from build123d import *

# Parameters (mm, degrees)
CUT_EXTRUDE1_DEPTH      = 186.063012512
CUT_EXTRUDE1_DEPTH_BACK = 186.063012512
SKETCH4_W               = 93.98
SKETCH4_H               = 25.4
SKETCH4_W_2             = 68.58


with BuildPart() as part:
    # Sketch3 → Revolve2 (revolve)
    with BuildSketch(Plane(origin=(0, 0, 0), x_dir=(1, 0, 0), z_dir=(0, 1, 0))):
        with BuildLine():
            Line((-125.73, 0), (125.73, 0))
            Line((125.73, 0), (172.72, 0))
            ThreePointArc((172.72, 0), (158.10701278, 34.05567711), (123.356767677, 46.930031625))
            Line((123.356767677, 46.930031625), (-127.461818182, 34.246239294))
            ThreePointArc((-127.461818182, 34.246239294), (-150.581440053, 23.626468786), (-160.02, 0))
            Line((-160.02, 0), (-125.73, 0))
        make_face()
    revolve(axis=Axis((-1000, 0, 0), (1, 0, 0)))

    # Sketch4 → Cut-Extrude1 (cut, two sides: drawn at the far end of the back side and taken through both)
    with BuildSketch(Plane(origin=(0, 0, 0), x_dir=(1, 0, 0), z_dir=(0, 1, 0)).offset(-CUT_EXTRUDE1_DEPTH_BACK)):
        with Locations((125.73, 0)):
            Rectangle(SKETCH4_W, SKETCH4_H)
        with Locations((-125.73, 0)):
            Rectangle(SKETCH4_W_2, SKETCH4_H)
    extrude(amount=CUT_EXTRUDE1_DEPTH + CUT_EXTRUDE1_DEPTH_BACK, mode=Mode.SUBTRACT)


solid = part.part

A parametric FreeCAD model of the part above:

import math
import FreeCAD as App
import Part
import Sketcher
Q = App.Units.Quantity

doc = App.newDocument("Part")
body = doc.addObject("PartDesign::Body", "Body")

# Sketch on XZ plane
sketch1 = doc.addObject("Sketcher::SketchObject", "Sketch")
body.addObject(sketch1)
sketch1.AttachmentSupport = (doc.XZ_Plane, [""])
sketch1.MapMode = "FlatFace"
sketch1.addGeometry(Part.ArcOfCircle(Part.Circle(App.Vector(126, 0, 0), App.Vector(0, 0, 1), 47), math.radians(-93), math.radians(0)), False)
sketch1.addGeometry(Part.LineSegment(App.Vector(123, -47, 0), App.Vector(-127, -34, 0)), False)
sketch1.addGeometry(Part.ArcOfCircle(Part.Circle(App.Vector(-126, 0, 0), App.Vector(0, 0, 1), 34), math.radians(180), math.radians(267)), False)
sketch1.addGeometry(Part.LineSegment(App.Vector(-160, 0, 0), App.Vector(173, 0, 0)), False)
sketch1.addConstraint(Sketcher.Constraint("Tangent", 0, 1, 1, 1))
sketch1.addConstraint(Sketcher.Constraint("Tangent", 1, 2, 2, 2))
sketch1.addConstraint(Sketcher.Constraint("Coincident", 2, 1, 3, 1))
sketch1.addConstraint(Sketcher.Constraint("Coincident", 3, 2, 0, 2))
sketch1.addConstraint(Sketcher.Constraint("Horizontal", 3))
sketch1.addConstraint(Sketcher.Constraint("Symmetric", 0, 3, 2, 3, -1, 1))
sketch1.addConstraint(Sketcher.Constraint("PointOnObject", 0, 3, -1))
sketch1.addConstraint(Sketcher.Constraint("PointOnObject", 2, 1, -1))
sketch1.addConstraint(Sketcher.Constraint("Radius", 0, Q("1.85 in")))
sketch1.addConstraint(Sketcher.Constraint("Radius", 2, Q("1.35 in")))
sketch1.addConstraint(Sketcher.Constraint("DistanceX", 3, 1, 3, 2, Q("13.1 in")))
revolution = doc.addObject("PartDesign::Revolution", "Revolution")
body.addObject(revolution)
revolution.Profile = sketch1
revolution.ReferenceAxis = (sketch1, ["H_Axis"])
revolution.Angle = 360

# Sketch on XZ plane
sketch2 = doc.addObject("Sketcher::SketchObject", "Sketch001")
body.addObject(sketch2)
sketch2.AttachmentSupport = (doc.XZ_Plane, [""])
sketch2.MapMode = "FlatFace"
sketch2.addGeometry(Part.LineSegment(App.Vector(79, -13, 0), App.Vector(79, 13, 0)), False)
sketch2.addGeometry(Part.LineSegment(App.Vector(79, 13, 0), App.Vector(173, 13, 0)), False)
sketch2.addGeometry(Part.LineSegment(App.Vector(173, 13, 0), App.Vector(173, -13, 0)), False)
sketch2.addGeometry(Part.LineSegment(App.Vector(173, -13, 0), App.Vector(79, -13, 0)), False)
sketch2.addGeometry(Part.LineSegment(App.Vector(-160, -13, 0), App.Vector(-160, 13, 0)), False)
sketch2.addGeometry(Part.LineSegment(App.Vector(-160, 13, 0), App.Vector(-91, 13, 0)), False)
sketch2.addGeometry(Part.LineSegment(App.Vector(-91, 13, 0), App.Vector(-91, -13, 0)), False)
sketch2.addGeometry(Part.LineSegment(App.Vector(-91, -13, 0), App.Vector(-160, -13, 0)), False)
sketch2.addConstraint(Sketcher.Constraint("Coincident", 0, 2, 1, 1))
sketch2.addConstraint(Sketcher.Constraint("Coincident", 1, 2, 2, 1))
sketch2.addConstraint(Sketcher.Constraint("Coincident", 2, 2, 3, 1))
sketch2.addConstraint(Sketcher.Constraint("Coincident", 3, 2, 0, 1))
sketch2.addConstraint(Sketcher.Constraint("Coincident", 4, 2, 5, 1))
sketch2.addConstraint(Sketcher.Constraint("Coincident", 5, 2, 6, 1))
sketch2.addConstraint(Sketcher.Constraint("Coincident", 6, 2, 7, 1))
sketch2.addConstraint(Sketcher.Constraint("Coincident", 7, 2, 4, 1))
sketch2.addConstraint(Sketcher.Constraint("Vertical", 0))
sketch2.addConstraint(Sketcher.Constraint("Horizontal", 1))
sketch2.addConstraint(Sketcher.Constraint("Vertical", 2))
sketch2.addConstraint(Sketcher.Constraint("Horizontal", 3))
sketch2.addConstraint(Sketcher.Constraint("Vertical", 4))
sketch2.addConstraint(Sketcher.Constraint("Horizontal", 5))
sketch2.addConstraint(Sketcher.Constraint("Vertical", 6))
sketch2.addConstraint(Sketcher.Constraint("Horizontal", 7))
sketch2.addConstraint(Sketcher.Constraint("Horizontal", 1, 2, 4, 2))
sketch2.addConstraint(Sketcher.Constraint("Horizontal", 3, 2, 6, 2))
sketch2.addConstraint(Sketcher.Constraint("DistanceY", 0, 1, 0, 2, Q("1 in")))
sketch2.addConstraint(Sketcher.Constraint("DistanceX", 1, 1, 1, 2, Q("3.7 in")))
sketch2.addConstraint(Sketcher.Constraint("DistanceX", 5, 1, 5, 2, Q("2.7 in")))
sketch2.addConstraint(Sketcher.Constraint("DistanceX", -1, 1, 0, 2, Q("3.1 in")))
sketch2.addConstraint(Sketcher.Constraint("DistanceY", -1, 1, 0, 2, Q("0.5 in")))
sketch2.addConstraint(Sketcher.Constraint("DistanceX", 4, 2, -1, 1, Q("6.3 in")))
pocket1 = doc.addObject("PartDesign::Pocket", "Pocket")
body.addObject(pocket1)
pocket1.Profile = sketch2
pocket1.Type = "ThroughAll"
pocket1.Midplane = True

doc.recompute()
